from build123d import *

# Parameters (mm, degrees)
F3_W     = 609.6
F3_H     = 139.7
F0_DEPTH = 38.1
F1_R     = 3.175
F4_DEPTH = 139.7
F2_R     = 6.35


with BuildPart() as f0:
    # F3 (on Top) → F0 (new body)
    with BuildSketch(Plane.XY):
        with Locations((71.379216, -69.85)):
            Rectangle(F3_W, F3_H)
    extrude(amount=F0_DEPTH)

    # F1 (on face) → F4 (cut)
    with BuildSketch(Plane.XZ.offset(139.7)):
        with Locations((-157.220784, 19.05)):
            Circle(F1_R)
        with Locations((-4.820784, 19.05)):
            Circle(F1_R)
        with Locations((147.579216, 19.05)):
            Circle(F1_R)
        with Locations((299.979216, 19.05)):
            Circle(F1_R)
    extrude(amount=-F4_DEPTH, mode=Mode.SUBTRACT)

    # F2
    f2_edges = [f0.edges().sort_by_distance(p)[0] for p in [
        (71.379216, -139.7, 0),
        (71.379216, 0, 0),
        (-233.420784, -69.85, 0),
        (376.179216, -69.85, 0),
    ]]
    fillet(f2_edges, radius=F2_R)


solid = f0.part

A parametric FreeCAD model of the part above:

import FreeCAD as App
import Part
import Sketcher

V = App.Vector
Q = App.Units.Quantity


def edges_at(feature, points):
    """Names of the edges that pass closest to the given points."""
    edges = feature.Shape.Edges
    near = lambda p: min(range(len(edges)), key=lambda i: edges[i].distToShape(Part.Vertex(*p))[0])
    return sorted({f"Edge{near(p) + 1}" for p in points})


def add_polygon(sketch, points):
    """Adds a closed chain of lines whose ends are joined by coincident constraints."""
    first, n = sketch.GeometryCount, len(points)
    for a, b in zip(points, points[1:] + points[:1]):
        sketch.addGeometry(Part.LineSegment(App.Vector(*a, 0), App.Vector(*b, 0)), False)
    for i in range(n):
        sketch.addConstraint(Sketcher.Constraint("Coincident", first + i, 2, first + (i + 1) % n, 1))

doc = App.newDocument("Part")
body = doc.addObject("PartDesign::Body", "Body")

# Sketch on XY plane
sketch1 = doc.addObject("Sketcher::SketchObject", "Sketch")
body.addObject(sketch1)
sketch1.AttachmentSupport = (doc.XY_Plane, [""])
sketch1.MapMode = "FlatFace"
add_polygon(sketch1, [(-233, 0), (-233, -140), (376, -140), (376, 0)])  # lines 0-3
sketch1.addConstraint(Sketcher.Constraint("Vertical", 0))
sketch1.addConstraint(Sketcher.Constraint("Horizontal", 1))
sketch1.addConstraint(Sketcher.Constraint("Vertical", 2))
sketch1.addConstraint(Sketcher.Constraint("Horizontal", 3))
sketch1.addConstraint(Sketcher.Constraint("PointOnObject", 2, 2, -1))
sketch1.addConstraint(Sketcher.Constraint("DistanceX", 1, 1, 1, 2, Q("24 in")))
sketch1.addConstraint(Sketcher.Constraint("DistanceY", 0, 2, 0, 1, Q("5.5 in")))
sketch1.addConstraint(Sketcher.Constraint("DistanceX", 0, 2, -1, 1, 233.420784))
pad1 = doc.addObject("PartDesign::Pad", "Pad")
body.addObject(pad1)
pad1.Profile = sketch1
pad1.Length = Q("1.5 in")

# Sketch on XZ plane
sketch2 = doc.addObject("Sketcher::SketchObject", "Sketch001")
body.addObject(sketch2)
sketch2.AttachmentSupport = (doc.XZ_Plane, [""])
sketch2.MapMode = "FlatFace"
sketch2.AttachmentOffset = App.Placement(V(0, 0, 5.5 * 25.4), App.Rotation())
sketch2.addGeometry(Part.Circle(V(-157.2, 19.1, 0), V(0, 0, 1), 3.2), False)
sketch2.addGeometry(Part.Circle(V(-4.8, 19.1, 0), V(0, 0, 1), 3.2), False)
sketch2.addGeometry(Part.Circle(V(147.6, 19.1, 0), V(0, 0, 1), 3.2), False)
sketch2.addGeometry(Part.Circle(V(300, 19.1, 0), V(0, 0, 1), 3.2), False)
sketch2.addConstraint(Sketcher.Constraint("Equal", 0, 1))
sketch2.addConstraint(Sketcher.Constraint("Equal", 1, 2))
sketch2.addConstraint(Sketcher.Constraint("Equal", 2, 3))
sketch2.addConstraint(Sketcher.Constraint("Horizontal", 0, 3, 1, 3))
sketch2.addConstraint(Sketcher.Constraint("Horizontal", 1, 3, 2, 3))
sketch2.addConstraint(Sketcher.Constraint("Horizontal", 2, 3, 3, 3))
sketch2.addConstraint(Sketcher.Constraint("Diameter", 0, Q("0.25 in")))
sketch2.addConstraint(Sketcher.Constraint("DistanceX", 0, 3, 1, 3, Q("6 in")))
sketch2.addConstraint(Sketcher.Constraint("DistanceX", 1, 3, 2, 3, Q("6 in")))
sketch2.addConstraint(Sketcher.Constraint("DistanceX", 2, 3, 3, 3, Q("6 in")))
sketch2.addConstraint(Sketcher.Constraint("DistanceY", -1, 1, 0, 3, Q("0.75 in")))
sketch2.addConstraint(Sketcher.Constraint("DistanceX", 0, 3, -1, 1, 157.220784))
pocket1 = doc.addObject("PartDesign::Pocket", "Pocket")
body.addObject(pocket1)
pocket1.Profile = sketch2
pocket1.Length = Q("5.5 in")
doc.recompute()

fillet = doc.addObject("PartDesign::Fillet", "Fillet")
body.addObject(fillet)
fillet.Base = (pocket1, edges_at(pocket1, [
    (71.379, -139.7, 0),
    (71.379, 0, 0),
    (-233.421, -69.85, 0),
    (376.179, -69.85, 0),
]))
fillet.Radius = Q("0.25 in")

doc.recompute()
